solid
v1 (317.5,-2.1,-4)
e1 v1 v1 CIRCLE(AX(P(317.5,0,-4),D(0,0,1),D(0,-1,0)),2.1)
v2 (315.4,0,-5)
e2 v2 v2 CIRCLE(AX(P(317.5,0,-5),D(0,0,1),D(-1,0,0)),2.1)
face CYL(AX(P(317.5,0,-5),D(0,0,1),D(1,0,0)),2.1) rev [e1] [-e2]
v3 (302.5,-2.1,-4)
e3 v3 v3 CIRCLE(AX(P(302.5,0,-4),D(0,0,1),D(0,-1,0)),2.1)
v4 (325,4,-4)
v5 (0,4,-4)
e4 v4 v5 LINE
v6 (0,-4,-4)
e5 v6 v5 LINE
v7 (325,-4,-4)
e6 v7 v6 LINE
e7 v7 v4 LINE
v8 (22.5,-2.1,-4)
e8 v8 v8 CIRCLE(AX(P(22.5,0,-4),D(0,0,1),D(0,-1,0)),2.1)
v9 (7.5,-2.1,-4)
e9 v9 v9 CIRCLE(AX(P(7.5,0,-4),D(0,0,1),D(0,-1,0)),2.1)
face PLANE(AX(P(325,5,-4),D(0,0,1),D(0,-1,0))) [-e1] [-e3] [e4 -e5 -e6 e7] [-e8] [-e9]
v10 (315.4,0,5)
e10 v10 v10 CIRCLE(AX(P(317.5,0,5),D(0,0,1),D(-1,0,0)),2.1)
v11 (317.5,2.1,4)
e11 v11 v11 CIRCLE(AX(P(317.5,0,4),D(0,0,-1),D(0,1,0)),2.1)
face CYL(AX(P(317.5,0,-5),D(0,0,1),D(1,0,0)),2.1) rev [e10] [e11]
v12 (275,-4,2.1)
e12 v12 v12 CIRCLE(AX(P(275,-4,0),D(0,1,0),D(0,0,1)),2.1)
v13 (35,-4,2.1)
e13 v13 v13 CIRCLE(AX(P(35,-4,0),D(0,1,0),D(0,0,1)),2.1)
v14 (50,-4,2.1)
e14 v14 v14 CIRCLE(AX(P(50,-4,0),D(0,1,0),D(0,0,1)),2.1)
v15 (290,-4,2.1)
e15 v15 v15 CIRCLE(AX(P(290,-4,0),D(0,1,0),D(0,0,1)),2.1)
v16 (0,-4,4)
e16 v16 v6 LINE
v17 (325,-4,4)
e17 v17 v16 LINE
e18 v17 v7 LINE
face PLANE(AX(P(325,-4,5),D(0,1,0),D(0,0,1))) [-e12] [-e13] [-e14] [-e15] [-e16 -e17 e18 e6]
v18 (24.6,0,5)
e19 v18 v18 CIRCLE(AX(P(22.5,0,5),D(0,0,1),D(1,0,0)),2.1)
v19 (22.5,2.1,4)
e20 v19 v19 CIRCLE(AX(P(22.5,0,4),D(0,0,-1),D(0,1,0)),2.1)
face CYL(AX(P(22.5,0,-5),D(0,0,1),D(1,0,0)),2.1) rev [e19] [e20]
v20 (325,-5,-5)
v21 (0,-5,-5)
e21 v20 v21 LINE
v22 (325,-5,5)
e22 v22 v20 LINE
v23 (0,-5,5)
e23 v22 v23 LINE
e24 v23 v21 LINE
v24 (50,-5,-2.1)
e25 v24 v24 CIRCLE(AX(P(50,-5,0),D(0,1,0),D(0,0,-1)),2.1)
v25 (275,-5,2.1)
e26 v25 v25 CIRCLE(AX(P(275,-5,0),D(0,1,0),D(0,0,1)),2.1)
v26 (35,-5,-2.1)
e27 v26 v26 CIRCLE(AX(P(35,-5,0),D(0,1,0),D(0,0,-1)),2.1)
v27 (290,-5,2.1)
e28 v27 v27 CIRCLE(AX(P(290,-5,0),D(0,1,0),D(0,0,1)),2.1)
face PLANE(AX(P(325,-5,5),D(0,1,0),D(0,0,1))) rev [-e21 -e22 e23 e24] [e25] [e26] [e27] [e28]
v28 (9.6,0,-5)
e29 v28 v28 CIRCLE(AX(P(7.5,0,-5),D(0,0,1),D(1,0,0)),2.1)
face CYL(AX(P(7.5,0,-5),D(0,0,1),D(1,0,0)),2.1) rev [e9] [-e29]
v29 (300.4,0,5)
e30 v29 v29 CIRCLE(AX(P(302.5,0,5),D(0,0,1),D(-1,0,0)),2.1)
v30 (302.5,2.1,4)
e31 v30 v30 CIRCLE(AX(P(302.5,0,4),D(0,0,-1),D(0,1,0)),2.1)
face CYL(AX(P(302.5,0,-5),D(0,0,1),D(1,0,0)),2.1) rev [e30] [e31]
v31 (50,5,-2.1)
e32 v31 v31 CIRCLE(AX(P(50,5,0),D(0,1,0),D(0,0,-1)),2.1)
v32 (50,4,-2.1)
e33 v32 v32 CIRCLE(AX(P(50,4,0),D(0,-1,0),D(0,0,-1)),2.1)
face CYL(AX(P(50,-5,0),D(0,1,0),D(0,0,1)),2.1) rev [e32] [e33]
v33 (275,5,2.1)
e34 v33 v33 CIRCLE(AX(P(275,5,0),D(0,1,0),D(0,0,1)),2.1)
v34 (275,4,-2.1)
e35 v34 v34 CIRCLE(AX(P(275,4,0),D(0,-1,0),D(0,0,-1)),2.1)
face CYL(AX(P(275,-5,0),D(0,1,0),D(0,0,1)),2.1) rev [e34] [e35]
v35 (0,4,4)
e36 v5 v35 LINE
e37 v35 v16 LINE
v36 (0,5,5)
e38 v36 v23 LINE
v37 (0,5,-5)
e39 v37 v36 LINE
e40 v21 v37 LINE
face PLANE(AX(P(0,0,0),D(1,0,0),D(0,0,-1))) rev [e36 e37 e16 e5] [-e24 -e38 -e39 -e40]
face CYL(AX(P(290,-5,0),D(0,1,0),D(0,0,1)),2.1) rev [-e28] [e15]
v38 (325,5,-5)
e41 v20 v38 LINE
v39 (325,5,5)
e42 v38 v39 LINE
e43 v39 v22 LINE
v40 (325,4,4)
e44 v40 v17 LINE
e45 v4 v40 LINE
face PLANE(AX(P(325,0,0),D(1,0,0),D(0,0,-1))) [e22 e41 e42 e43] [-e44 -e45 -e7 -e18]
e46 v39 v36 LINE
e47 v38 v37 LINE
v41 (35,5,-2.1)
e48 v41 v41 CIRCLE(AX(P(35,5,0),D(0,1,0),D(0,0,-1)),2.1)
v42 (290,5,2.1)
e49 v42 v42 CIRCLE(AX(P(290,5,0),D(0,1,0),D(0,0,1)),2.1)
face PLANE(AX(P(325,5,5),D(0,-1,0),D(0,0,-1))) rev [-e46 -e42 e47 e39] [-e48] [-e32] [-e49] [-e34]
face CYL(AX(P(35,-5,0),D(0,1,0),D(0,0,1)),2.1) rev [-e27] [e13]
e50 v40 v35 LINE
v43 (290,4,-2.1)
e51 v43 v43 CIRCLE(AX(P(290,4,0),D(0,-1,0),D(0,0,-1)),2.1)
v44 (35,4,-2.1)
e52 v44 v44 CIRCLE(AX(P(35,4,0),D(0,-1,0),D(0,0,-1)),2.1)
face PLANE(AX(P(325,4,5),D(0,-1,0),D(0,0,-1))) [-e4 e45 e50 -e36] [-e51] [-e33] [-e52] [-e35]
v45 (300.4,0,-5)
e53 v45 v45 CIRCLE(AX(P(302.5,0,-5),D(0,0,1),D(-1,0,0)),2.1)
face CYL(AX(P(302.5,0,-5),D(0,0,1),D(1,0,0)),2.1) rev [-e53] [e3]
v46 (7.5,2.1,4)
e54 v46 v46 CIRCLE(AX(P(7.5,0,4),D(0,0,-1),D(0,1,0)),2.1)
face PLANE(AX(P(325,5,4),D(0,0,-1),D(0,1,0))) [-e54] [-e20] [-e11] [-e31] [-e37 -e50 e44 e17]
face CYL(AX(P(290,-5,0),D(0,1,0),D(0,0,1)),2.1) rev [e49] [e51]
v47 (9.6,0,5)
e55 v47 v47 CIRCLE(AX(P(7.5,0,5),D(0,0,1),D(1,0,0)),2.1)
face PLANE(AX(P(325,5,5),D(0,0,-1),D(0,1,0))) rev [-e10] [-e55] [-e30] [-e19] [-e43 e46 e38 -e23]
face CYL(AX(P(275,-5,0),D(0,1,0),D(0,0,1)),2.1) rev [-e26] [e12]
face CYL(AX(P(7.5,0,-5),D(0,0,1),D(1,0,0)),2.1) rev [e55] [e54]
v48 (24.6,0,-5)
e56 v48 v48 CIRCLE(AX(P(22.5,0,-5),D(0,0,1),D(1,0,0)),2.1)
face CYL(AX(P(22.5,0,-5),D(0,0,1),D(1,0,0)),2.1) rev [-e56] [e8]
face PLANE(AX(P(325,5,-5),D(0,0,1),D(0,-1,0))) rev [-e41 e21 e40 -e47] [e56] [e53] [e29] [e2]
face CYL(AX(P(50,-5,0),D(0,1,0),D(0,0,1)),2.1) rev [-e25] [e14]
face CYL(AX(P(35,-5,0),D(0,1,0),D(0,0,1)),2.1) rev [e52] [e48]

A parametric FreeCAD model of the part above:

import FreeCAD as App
import Part
import Sketcher

V = App.Vector


def add_polygon(sketch, points):
    """Adds a closed chain of lines whose ends are joined by coincident constraints."""
    first, n = sketch.GeometryCount, len(points)
    for a, b in zip(points, points[1:] + points[:1]):
        sketch.addGeometry(Part.LineSegment(App.Vector(*a, 0), App.Vector(*b, 0)), False)
    for i in range(n):
        sketch.addConstraint(Sketcher.Constraint("Coincident", first + i, 2, first + (i + 1) % n, 1))

doc = App.newDocument("Part")
body = doc.addObject("PartDesign::Body", "Body")

# Sketch on YZ plane
sketch1 = doc.addObject("Sketcher::SketchObject", "Sketch")
body.addObject(sketch1)
sketch1.AttachmentSupport = (doc.YZ_Plane, [""])
sketch1.MapMode = "FlatFace"
add_polygon(sketch1, [(5, 5), (-5, 5), (-5, -5), (5, -5)])  # lines 0-3
add_polygon(sketch1, [(-4, -4), (-4, 4), (4, 4), (4, -4)])  # lines 4-7
sketch1.addConstraint([
    Sketcher.Constraint("Horizontal", 0),
    Sketcher.Constraint("Vertical", 1),
    Sketcher.Constraint("Horizontal", 2),
    Sketcher.Constraint("Vertical", 3),
    Sketcher.Constraint("Vertical", 4),
    Sketcher.Constraint("Horizontal", 5),
    Sketcher.Constraint("Vertical", 6),
    Sketcher.Constraint("Horizontal", 7),
    Sketcher.Constraint("Symmetric", 0, 2, 2, 2, -1, 1),
    Sketcher.Constraint("Symmetric", 4, 2, 6, 2, -1, 1),
    Sketcher.Constraint("Equal", 2, 1),
    Sketcher.Constraint("Equal", 7, 4),
    Sketcher.Constraint("DistanceX", 0, 2, 0, 1, 10.0),
    Sketcher.Constraint("DistanceX", 5, 1, 5, 2, 8.0),
])
pad1 = doc.addObject("PartDesign::Pad", "Pad")
body.addObject(pad1)
pad1.Profile = sketch1
pad1.Length = 325

# Sketch on XY plane
sketch2 = doc.addObject("Sketcher::SketchObject", "Sketch001")
body.addObject(sketch2)
sketch2.AttachmentSupport = (doc.XY_Plane, [""])
sketch2.MapMode = "FlatFace"
sketch2.AttachmentOffset = App.Placement(V(0, 0, 5), App.Rotation())
sketch2.addGeometry([
    Part.Circle(V(22.5, 0, 0), V(0, 0, 1), 2.1),
    Part.Circle(V(7.5, 0, 0), V(0, 0, 1), 2.1),
    Part.Circle(V(317.5, 0, 0), V(0, 0, 1), 2.1),
    Part.Circle(V(302.5, 0, 0), V(0, 0, 1), 2.1),
], False)
sketch2.addConstraint([
    Sketcher.Constraint("Equal", 0, 1),
    Sketcher.Constraint("Equal", 1, 2),
    Sketcher.Constraint("Equal", 2, 3),
    Sketcher.Constraint("PointOnObject", 0, 3, -1),
    Sketcher.Constraint("PointOnObject", 1, 3, -1),
    Sketcher.Constraint("PointOnObject", 2, 3, -1),
    Sketcher.Constraint("PointOnObject", 3, 3, -1),
    Sketcher.Constraint("Diameter", 0, 4.2),
    Sketcher.Constraint("DistanceX", 1, 3, 0, 3, 15.0),
    Sketcher.Constraint("DistanceX", 0, 3, 2, 3, 295.0),
    Sketcher.Constraint("DistanceX", 3, 3, 2, 3, 15.0),
    Sketcher.Constraint("DistanceX", -1, 1, 0, 3, 22.5),
])
pocket1 = doc.addObject("PartDesign::Pocket", "Pocket")
body.addObject(pocket1)
pocket1.Profile = sketch2
pocket1.Type = "ThroughAll"

# Sketch on XZ plane
sketch3 = doc.addObject("Sketcher::SketchObject", "Sketch002")
body.addObject(sketch3)
sketch3.AttachmentSupport = (doc.XZ_Plane, [""])
sketch3.MapMode = "FlatFace"
sketch3.AttachmentOffset = App.Placement(V(0, 0, -5), App.Rotation())
sketch3.addGeometry([
    Part.Circle(V(275, 0, 0), V(0, 0, 1), 2.1),
    Part.Circle(V(290, 0, 0), V(0, 0, 1), 2.1),
    Part.Circle(V(35, 0, 0), V(0, 0, 1), 2.1),
    Part.Circle(V(50, 0, 0), V(0, 0, 1), 2.1),
], False)
sketch3.addConstraint([
    Sketcher.Constraint("Equal", 0, 1),
    Sketcher.Constraint("Equal", 1, 2),
    Sketcher.Constraint("Equal", 2, 3),
    Sketcher.Constraint("PointOnObject", 0, 3, -1),
    Sketcher.Constraint("PointOnObject", 1, 3, -1),
    Sketcher.Constraint("PointOnObject", 2, 3, -1),
    Sketcher.Constraint("PointOnObject", 3, 3, -1),
    Sketcher.Constraint("Diameter", 0, 4.2),
    Sketcher.Constraint("DistanceX", -1, 1, 0, 3, 275.0),
    Sketcher.Constraint("DistanceX", -1, 1, 1, 3, 290.0),
    Sketcher.Constraint("DistanceX", -1, 1, 2, 3, 35.0),
    Sketcher.Constraint("DistanceX", -1, 1, 3, 3, 50.0),
])
pocket2 = doc.addObject("PartDesign::Pocket", "Pocket001")
body.addObject(pocket2)
pocket2.Profile = sketch3
pocket2.Type = "ThroughAll"
pocket2.Reversed = True

doc.recompute()
